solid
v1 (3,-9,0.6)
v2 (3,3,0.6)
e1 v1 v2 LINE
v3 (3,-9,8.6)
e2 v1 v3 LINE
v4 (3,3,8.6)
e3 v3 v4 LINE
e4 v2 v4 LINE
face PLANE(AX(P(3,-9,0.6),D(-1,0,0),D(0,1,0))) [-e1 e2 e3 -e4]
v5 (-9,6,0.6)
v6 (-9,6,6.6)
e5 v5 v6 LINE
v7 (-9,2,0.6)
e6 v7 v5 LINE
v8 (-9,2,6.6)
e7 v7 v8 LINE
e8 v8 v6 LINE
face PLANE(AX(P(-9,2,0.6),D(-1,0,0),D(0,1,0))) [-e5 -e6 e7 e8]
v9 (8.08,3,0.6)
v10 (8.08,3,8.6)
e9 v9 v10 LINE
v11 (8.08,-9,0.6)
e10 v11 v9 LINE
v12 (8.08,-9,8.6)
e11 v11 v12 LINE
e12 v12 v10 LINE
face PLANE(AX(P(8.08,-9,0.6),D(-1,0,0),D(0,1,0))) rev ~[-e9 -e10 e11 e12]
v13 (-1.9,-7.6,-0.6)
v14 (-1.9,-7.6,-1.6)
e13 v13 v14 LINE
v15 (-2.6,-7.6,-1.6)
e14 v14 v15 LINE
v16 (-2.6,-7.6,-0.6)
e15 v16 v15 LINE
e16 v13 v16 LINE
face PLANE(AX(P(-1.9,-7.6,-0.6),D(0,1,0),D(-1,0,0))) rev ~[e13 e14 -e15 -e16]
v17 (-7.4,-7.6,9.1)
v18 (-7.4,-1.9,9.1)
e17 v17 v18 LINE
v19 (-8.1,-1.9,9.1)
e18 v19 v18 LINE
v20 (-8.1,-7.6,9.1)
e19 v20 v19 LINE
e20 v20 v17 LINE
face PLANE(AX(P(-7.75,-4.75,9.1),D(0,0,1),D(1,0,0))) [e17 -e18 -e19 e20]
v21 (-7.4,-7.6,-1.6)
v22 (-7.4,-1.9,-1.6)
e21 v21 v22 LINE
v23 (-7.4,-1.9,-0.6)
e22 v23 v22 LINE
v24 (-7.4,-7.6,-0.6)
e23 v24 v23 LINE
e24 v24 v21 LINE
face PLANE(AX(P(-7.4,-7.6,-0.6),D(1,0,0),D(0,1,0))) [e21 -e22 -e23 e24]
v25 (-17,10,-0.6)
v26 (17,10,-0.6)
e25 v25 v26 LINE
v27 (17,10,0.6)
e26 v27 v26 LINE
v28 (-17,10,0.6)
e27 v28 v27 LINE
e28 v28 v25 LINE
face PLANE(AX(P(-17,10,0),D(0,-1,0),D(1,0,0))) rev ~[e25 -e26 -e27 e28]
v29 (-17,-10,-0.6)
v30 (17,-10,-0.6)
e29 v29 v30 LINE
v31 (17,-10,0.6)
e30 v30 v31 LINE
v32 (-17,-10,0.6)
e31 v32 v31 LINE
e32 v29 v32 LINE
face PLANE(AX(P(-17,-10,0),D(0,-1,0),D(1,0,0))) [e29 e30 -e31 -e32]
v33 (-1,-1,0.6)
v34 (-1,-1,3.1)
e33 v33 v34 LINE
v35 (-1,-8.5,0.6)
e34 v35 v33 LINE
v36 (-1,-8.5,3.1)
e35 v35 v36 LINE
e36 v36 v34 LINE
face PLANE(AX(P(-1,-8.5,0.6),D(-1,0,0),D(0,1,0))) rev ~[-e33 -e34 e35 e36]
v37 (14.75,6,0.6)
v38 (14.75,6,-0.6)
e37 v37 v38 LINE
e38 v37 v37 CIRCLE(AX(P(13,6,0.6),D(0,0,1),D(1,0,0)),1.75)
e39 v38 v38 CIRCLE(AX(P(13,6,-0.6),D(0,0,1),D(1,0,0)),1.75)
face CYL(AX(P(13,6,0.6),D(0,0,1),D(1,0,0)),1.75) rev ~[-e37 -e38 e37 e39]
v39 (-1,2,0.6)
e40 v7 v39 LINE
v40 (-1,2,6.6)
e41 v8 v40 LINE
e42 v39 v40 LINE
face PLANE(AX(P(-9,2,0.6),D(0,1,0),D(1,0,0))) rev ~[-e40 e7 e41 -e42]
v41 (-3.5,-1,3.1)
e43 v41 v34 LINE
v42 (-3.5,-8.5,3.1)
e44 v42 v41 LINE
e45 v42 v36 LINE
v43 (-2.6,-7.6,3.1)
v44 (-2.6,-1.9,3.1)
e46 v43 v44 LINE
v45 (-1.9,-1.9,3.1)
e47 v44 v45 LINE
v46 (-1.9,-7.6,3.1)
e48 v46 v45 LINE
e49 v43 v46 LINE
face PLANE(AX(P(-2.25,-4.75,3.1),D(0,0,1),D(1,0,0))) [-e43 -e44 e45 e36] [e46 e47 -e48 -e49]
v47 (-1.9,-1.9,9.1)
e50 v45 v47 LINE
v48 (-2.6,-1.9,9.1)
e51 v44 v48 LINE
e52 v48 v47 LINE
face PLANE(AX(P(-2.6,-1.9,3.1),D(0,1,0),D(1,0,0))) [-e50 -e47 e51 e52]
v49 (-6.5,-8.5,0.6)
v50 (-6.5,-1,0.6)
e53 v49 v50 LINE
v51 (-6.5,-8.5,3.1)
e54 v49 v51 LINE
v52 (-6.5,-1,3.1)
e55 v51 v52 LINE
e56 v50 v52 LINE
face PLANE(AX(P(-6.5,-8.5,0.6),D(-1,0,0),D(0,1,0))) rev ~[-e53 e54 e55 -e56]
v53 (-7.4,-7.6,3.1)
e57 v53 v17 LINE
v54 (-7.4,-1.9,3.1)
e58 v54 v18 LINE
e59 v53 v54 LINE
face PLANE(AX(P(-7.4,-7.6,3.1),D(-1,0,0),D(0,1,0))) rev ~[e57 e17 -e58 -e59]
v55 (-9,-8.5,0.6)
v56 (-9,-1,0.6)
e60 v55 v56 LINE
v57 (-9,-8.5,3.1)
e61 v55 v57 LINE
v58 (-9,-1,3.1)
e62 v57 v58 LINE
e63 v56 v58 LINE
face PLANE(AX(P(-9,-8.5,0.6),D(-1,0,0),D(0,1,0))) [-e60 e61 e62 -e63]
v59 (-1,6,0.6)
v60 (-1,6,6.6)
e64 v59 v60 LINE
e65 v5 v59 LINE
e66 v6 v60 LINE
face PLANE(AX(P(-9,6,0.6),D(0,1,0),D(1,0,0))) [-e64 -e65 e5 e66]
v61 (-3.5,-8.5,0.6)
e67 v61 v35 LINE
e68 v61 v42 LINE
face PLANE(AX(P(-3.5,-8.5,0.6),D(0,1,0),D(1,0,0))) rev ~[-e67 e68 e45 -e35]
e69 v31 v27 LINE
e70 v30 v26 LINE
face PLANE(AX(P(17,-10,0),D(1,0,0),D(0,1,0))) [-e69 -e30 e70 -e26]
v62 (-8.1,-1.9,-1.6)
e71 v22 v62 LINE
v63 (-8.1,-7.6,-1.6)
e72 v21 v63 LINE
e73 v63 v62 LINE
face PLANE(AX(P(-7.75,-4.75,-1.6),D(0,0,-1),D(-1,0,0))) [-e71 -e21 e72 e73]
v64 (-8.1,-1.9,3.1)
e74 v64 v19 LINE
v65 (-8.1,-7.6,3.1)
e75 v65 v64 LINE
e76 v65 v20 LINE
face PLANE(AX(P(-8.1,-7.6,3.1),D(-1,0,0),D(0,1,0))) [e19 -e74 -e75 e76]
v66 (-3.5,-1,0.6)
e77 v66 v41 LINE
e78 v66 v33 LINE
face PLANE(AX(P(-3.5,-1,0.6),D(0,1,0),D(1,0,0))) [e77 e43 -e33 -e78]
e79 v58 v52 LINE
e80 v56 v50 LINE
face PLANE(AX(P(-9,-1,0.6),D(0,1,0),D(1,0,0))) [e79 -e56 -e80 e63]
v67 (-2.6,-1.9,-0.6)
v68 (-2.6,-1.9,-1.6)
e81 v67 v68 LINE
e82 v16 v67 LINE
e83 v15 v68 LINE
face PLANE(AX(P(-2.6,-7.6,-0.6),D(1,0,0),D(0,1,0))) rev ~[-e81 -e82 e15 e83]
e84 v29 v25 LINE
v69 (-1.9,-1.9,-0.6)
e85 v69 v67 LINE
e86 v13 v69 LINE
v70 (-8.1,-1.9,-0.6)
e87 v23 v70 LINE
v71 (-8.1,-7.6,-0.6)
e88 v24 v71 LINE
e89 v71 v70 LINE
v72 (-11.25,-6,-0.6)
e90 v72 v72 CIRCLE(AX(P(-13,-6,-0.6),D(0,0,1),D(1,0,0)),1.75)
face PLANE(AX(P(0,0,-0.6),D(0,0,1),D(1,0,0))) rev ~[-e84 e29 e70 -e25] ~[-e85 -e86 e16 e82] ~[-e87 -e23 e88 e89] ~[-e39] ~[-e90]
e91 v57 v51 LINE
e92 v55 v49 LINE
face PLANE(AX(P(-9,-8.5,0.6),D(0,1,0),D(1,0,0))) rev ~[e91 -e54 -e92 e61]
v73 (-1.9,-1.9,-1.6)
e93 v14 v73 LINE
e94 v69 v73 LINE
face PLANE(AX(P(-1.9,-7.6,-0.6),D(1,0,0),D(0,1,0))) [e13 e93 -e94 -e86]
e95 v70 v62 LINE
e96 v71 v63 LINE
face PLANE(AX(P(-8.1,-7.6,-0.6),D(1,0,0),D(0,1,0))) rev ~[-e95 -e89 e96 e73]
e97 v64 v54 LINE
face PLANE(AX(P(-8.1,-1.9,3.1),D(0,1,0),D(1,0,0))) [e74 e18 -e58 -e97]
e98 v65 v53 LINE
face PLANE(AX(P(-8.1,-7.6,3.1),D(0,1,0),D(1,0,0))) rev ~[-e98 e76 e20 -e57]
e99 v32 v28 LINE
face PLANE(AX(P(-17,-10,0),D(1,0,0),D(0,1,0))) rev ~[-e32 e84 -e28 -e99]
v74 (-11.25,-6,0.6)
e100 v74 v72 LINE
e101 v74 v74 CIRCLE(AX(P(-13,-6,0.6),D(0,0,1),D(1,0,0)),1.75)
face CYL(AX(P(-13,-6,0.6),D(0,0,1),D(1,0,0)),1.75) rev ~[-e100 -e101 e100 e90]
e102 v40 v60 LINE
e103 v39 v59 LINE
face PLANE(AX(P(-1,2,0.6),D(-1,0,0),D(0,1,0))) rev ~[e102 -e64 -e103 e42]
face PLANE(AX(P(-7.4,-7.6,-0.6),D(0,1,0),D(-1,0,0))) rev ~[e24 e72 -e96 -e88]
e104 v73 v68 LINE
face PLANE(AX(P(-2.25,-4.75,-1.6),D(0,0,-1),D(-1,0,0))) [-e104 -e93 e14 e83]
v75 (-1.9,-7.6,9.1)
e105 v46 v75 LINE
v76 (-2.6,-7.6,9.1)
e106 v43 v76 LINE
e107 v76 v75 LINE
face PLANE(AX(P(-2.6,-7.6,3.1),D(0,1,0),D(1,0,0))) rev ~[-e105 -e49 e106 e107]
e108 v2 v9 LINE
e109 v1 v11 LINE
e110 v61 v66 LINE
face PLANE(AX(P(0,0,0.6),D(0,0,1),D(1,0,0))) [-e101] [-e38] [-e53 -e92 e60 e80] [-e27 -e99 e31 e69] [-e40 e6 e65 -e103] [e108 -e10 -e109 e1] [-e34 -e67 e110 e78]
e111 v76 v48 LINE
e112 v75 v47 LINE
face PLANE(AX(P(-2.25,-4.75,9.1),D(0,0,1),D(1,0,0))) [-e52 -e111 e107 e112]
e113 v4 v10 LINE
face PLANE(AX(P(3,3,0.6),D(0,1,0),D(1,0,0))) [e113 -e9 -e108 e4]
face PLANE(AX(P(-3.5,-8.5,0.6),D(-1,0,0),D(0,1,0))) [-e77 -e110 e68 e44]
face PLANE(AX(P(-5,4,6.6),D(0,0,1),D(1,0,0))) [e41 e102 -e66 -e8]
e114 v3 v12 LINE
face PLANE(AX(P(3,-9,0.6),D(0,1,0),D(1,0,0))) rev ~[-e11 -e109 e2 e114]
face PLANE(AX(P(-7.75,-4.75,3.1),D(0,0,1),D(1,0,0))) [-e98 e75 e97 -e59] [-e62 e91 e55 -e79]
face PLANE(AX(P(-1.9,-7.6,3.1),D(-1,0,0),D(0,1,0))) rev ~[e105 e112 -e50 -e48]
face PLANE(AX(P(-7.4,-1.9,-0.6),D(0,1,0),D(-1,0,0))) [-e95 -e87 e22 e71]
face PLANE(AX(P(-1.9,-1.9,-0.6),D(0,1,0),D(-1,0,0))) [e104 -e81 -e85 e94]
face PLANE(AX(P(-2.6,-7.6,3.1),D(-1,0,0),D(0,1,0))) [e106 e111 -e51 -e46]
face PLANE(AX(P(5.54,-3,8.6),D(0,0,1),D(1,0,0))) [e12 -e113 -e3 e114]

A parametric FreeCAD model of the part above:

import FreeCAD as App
import Part
import Sketcher
from FreeCAD import Vector
Q = App.Units.Quantity

doc = App.newDocument("Part")
body = doc.addObject("PartDesign::Body", "Body")

sketch1 = doc.addObject("Sketcher::SketchObject", "Sketch")
body.addObject(sketch1)
sketch1.AttachmentSupport = (doc.XY_Plane, [""])
sketch1.MapMode = "FlatFace"
sketch1.addGeometry([
    Part.LineSegment(Vector(-17, 10, 0), Vector(-17, -10, 0)),
    Part.LineSegment(Vector(-17, -10, 0), Vector(17, -10, 0)),
    Part.LineSegment(Vector(17, -10, 0), Vector(17, 10, 0)),
    Part.LineSegment(Vector(17, 10, 0), Vector(-17, 10, 0)),
], False)
sketch1.addConstraint([
    Sketcher.Constraint("Coincident", 0, 2, 1, 1),
    Sketcher.Constraint("Coincident", 1, 2, 2, 1),
    Sketcher.Constraint("Coincident", 2, 2, 3, 1),
    Sketcher.Constraint("Coincident", 3, 2, 0, 1),
    Sketcher.Constraint("Vertical", 0),
    Sketcher.Constraint("Horizontal", 1),
    Sketcher.Constraint("Vertical", 2),
    Sketcher.Constraint("Horizontal", 3),
    Sketcher.Constraint("Symmetric", 0, 2, 2, 2, -1, 1),
    Sketcher.Constraint("DistanceX", 1, 1, 1, 2, Q("34 mm")),
    Sketcher.Constraint("DistanceY", 0, 2, 0, 1, Q("20 mm")),
])
pad1 = doc.addObject("PartDesign::Pad", "Pad")
body.addObject(pad1)
pad1.Profile = sketch1
pad1.Length = 1.2
pad1.Midplane = True

sketch2 = doc.addObject("Sketcher::SketchObject", "Sketch001")
body.addObject(sketch2)
sketch2.AttachmentSupport = (doc.XY_Plane, [""])
sketch2.MapMode = "FlatFace"
sketch2.AttachmentOffset = App.Placement(Vector(0, 0, 0.6), App.Rotation())
sketch2.addGeometry([
    Part.LineSegment(Vector(-9, -1, 0), Vector(-9, -8.5, 0)),
    Part.LineSegment(Vector(-9, -8.5, 0), Vector(-6.5, -8.5, 0)),
    Part.LineSegment(Vector(-6.5, -8.5, 0), Vector(-6.5, -1, 0)),
    Part.LineSegment(Vector(-6.5, -1, 0), Vector(-9, -1, 0)),
    Part.LineSegment(Vector(-3.5, -1, 0), Vector(-3.5, -8.5, 0)),
    Part.LineSegment(Vector(-3.5, -8.5, 0), Vector(-1, -8.5, 0)),
    Part.LineSegment(Vector(-1, -8.5, 0), Vector(-1, -1, 0)),
    Part.LineSegment(Vector(-1, -1, 0), Vector(-3.5, -1, 0)),
], False)
sketch2.addConstraint([
    Sketcher.Constraint("Coincident", 0, 2, 1, 1),
    Sketcher.Constraint("Coincident", 1, 2, 2, 1),
    Sketcher.Constraint("Coincident", 2, 2, 3, 1),
    Sketcher.Constraint("Coincident", 3, 2, 0, 1),
    Sketcher.Constraint("Coincident", 4, 2, 5, 1),
    Sketcher.Constraint("Coincident", 5, 2, 6, 1),
    Sketcher.Constraint("Coincident", 6, 2, 7, 1),
    Sketcher.Constraint("Coincident", 7, 2, 4, 1),
    Sketcher.Constraint("Vertical", 0),
    Sketcher.Constraint("Horizontal", 1),
    Sketcher.Constraint("Vertical", 2),
    Sketcher.Constraint("Horizontal", 3),
    Sketcher.Constraint("Vertical", 4),
    Sketcher.Constraint("Horizontal", 5),
    Sketcher.Constraint("Vertical", 6),
    Sketcher.Constraint("Horizontal", 7),
    Sketcher.Constraint("Horizontal", 1, 2, 4, 2),
    Sketcher.Constraint("Horizontal", 3, 2, 6, 2),
    Sketcher.Constraint("Equal", 3, 5),
    Sketcher.Constraint("DistanceX", 1, 1, 1, 2, Q("2.5 mm")),
    Sketcher.Constraint("DistanceY", 0, 2, 0, 1, Q("7.5 mm")),
    Sketcher.Constraint("DistanceX", 0, 2, -1, 1, Q("9 mm")),
    Sketcher.Constraint("DistanceY", 2, 2, -1, 1, Q("1 mm")),
    Sketcher.Constraint("DistanceX", 5, 2, -1, 1, Q("1 mm")),
])
pad2 = doc.addObject("PartDesign::Pad", "Pad001")
body.addObject(pad2)
pad2.Profile = sketch2
pad2.Length = 2.5

sketch3 = doc.addObject("Sketcher::SketchObject", "Sketch002")
body.addObject(sketch3)
sketch3.AttachmentSupport = (doc.XY_Plane, [""])
sketch3.MapMode = "FlatFace"
sketch3.AttachmentOffset = App.Placement(Vector(0, 0, 3.1), App.Rotation())
sketch3.addGeometry([
    Part.LineSegment(Vector(-8.1, -1.9, 0), Vector(-8.1, -7.6, 0)),
    Part.LineSegment(Vector(-8.1, -7.6, 0), Vector(-7.4, -7.6, 0)),
    Part.LineSegment(Vector(-7.4, -7.6, 0), Vector(-7.4, -1.9, 0)),
    Part.LineSegment(Vector(-7.4, -1.9, 0), Vector(-8.1, -1.9, 0)),
    Part.LineSegment(Vector(-2.6, -1.9, 0), Vector(-2.6, -7.6, 0)),
    Part.LineSegment(Vector(-2.6, -7.6, 0), Vector(-1.9, -7.6, 0)),
    Part.LineSegment(Vector(-1.9, -7.6, 0), Vector(-1.9, -1.9, 0)),
    Part.LineSegment(Vector(-1.9, -1.9, 0), Vector(-2.6, -1.9, 0)),
], False)
sketch3.addConstraint([
    Sketcher.Constraint("Coincident", 0, 2, 1, 1),
    Sketcher.Constraint("Coincident", 1, 2, 2, 1),
    Sketcher.Constraint("Coincident", 2, 2, 3, 1),
    Sketcher.Constraint("Coincident", 3, 2, 0, 1),
    Sketcher.Constraint("Coincident", 4, 2, 5, 1),
    Sketcher.Constraint("Coincident", 5, 2, 6, 1),
    Sketcher.Constraint("Coincident", 6, 2, 7, 1),
    Sketcher.Constraint("Coincident", 7, 2, 4, 1),
    Sketcher.Constraint("Vertical", 0),
    Sketcher.Constraint("Horizontal", 1),
    Sketcher.Constraint("Vertical", 2),
    Sketcher.Constraint("Horizontal", 3),
    Sketcher.Constraint("Vertical", 4),
    Sketcher.Constraint("Horizontal", 5),
    Sketcher.Constraint("Vertical", 6),
    Sketcher.Constraint("Horizontal", 7),
    Sketcher.Constraint("Horizontal", 1, 2, 4, 2),
    Sketcher.Constraint("Horizontal", 3, 2, 6, 2),
    Sketcher.Constraint("Equal", 3, 5),
    Sketcher.Constraint("DistanceX", 1, 1, 1, 2, Q("0.7 mm")),
    Sketcher.Constraint("DistanceY", 0, 2, 0, 1, Q("5.7 mm")),
    Sketcher.Constraint("DistanceX", 0, 2, -1, 1, Q("8.1 mm")),
    Sketcher.Constraint("DistanceY", 0, 2, -1, 1, Q("7.6 mm")),
    Sketcher.Constraint("DistanceX", 4, 2, -1, 1, Q("2.6 mm")),
])
pad3 = doc.addObject("PartDesign::Pad", "Pad002")
body.addObject(pad3)
pad3.Profile = sketch3
pad3.Length = 6

sketch4 = doc.addObject("Sketcher::SketchObject", "Sketch003")
body.addObject(sketch4)
sketch4.AttachmentSupport = (doc.XY_Plane, [""])
sketch4.MapMode = "FlatFace"
sketch4.AttachmentOffset = App.Placement(Vector(0, 0, -0.6), App.Rotation())
sketch4.addGeometry([
    Part.LineSegment(Vector(-7.4, -1.9, 0), Vector(-7.4, -7.6, 0)),
    Part.LineSegment(Vector(-7.4, -7.6, 0), Vector(-8.1, -7.6, 0)),
    Part.LineSegment(Vector(-8.1, -7.6, 0), Vector(-8.1, -1.9, 0)),
    Part.LineSegment(Vector(-8.1, -1.9, 0), Vector(-7.4, -1.9, 0)),
    Part.LineSegment(Vector(-1.9, -1.9, 0), Vector(-1.9, -7.6, 0)),
    Part.LineSegment(Vector(-1.9, -7.6, 0), Vector(-2.6, -7.6, 0)),
    Part.LineSegment(Vector(-2.6, -7.6, 0), Vector(-2.6, -1.9, 0)),
    Part.LineSegment(Vector(-2.6, -1.9, 0), Vector(-1.9, -1.9, 0)),
], False)
sketch4.addConstraint([
    Sketcher.Constraint("Coincident", 0, 2, 1, 1),
    Sketcher.Constraint("Coincident", 1, 2, 2, 1),
    Sketcher.Constraint("Coincident", 2, 2, 3, 1),
    Sketcher.Constraint("Coincident", 3, 2, 0, 1),
    Sketcher.Constraint("Coincident", 4, 2, 5, 1),
    Sketcher.Constraint("Coincident", 5, 2, 6, 1),
    Sketcher.Constraint("Coincident", 6, 2, 7, 1),
    Sketcher.Constraint("Coincident", 7, 2, 4, 1),
    Sketcher.Constraint("Vertical", 0),
    Sketcher.Constraint("Horizontal", 1),
    Sketcher.Constraint("Vertical", 2),
    Sketcher.Constraint("Horizontal", 3),
    Sketcher.Constraint("Vertical", 4),
    Sketcher.Constraint("Horizontal", 5),
    Sketcher.Constraint("Vertical", 6),
    Sketcher.Constraint("Horizontal", 7),
    Sketcher.Constraint("Horizontal", 1, 2, 4, 2),
    Sketcher.Constraint("Horizontal", 3, 2, 6, 2),
    Sketcher.Constraint("Equal", 3, 5),
    Sketcher.Constraint("DistanceX", 1, 2, 1, 1, Q("0.7 mm")),
    Sketcher.Constraint("DistanceY", 0, 2, 0, 1, Q("5.7 mm")),
    Sketcher.Constraint("DistanceX", 0, 2, -1, 1, Q("7.4 mm")),
    Sketcher.Constraint("DistanceY", 0, 2, -1, 1, Q("7.6 mm")),
    Sketcher.Constraint("DistanceX", 4, 2, -1, 1, Q("1.9 mm")),
])
pad4 = doc.addObject("PartDesign::Pad", "Pad003")
body.addObject(pad4)
pad4.Profile = sketch4
pad4.Length = 1
pad4.Reversed = True

sketch5 = doc.addObject("Sketcher::SketchObject", "Sketch004")
body.addObject(sketch5)
sketch5.AttachmentSupport = (doc.XY_Plane, [""])
sketch5.MapMode = "FlatFace"
sketch5.AttachmentOffset = App.Placement(Vector(0, 0, 0.6), App.Rotation())
sketch5.addGeometry([
    Part.LineSegment(Vector(3, 3, 0), Vector(3, -9, 0)),
    Part.LineSegment(Vector(3, -9, 0), Vector(8.08, -9, 0)),
    Part.LineSegment(Vector(8.08, -9, 0), Vector(8.08, 3, 0)),
    Part.LineSegment(Vector(8.08, 3, 0), Vector(3, 3, 0)),
], False)
sketch5.addConstraint([
    Sketcher.Constraint("Coincident", 0, 2, 1, 1),
    Sketcher.Constraint("Coincident", 1, 2, 2, 1),
    Sketcher.Constraint("Coincident", 2, 2, 3, 1),
    Sketcher.Constraint("Coincident", 3, 2, 0, 1),
    Sketcher.Constraint("Vertical", 0),
    Sketcher.Constraint("Horizontal", 1),
    Sketcher.Constraint("Vertical", 2),
    Sketcher.Constraint("Horizontal", 3),
    Sketcher.Constraint("DistanceY", 0, 2, 0, 1, Q("12 mm")),
    Sketcher.Constraint("DistanceX", -1, 1, 0, 2, Q("3 mm")),
    Sketcher.Constraint("DistanceY", 0, 2, -1, 1, Q("9 mm")),
    Sketcher.Constraint("DistanceX", 1, 1, 1, 2, Q("5.08 mm")),
])
pad5 = doc.addObject("PartDesign::Pad", "Pad004")
body.addObject(pad5)
pad5.Profile = sketch5
pad5.Length = 8

sketch6 = doc.addObject("Sketcher::SketchObject", "Sketch005")
body.addObject(sketch6)
sketch6.AttachmentSupport = (doc.XY_Plane, [""])
sketch6.MapMode = "FlatFace"
sketch6.AttachmentOffset = App.Placement(Vector(0, 0, 0.6), App.Rotation())
sketch6.addGeometry([
    Part.LineSegment(Vector(-9, 6, 0), Vector(-9, 2, 0)),
    Part.LineSegment(Vector(-9, 2, 0), Vector(-1, 2, 0)),
    Part.LineSegment(Vector(-1, 2, 0), Vector(-1, 6, 0)),
    Part.LineSegment(Vector(-1, 6, 0), Vector(-9, 6, 0)),
], False)
sketch6.addConstraint([
    Sketcher.Constraint("Coincident", 0, 2, 1, 1),
    Sketcher.Constraint("Coincident", 1, 2, 2, 1),
    Sketcher.Constraint("Coincident", 2, 2, 3, 1),
    Sketcher.Constraint("Coincident", 3, 2, 0, 1),
    Sketcher.Constraint("Vertical", 0),
    Sketcher.Constraint("Horizontal", 1),
    Sketcher.Constraint("Vertical", 2),
    Sketcher.Constraint("Horizontal", 3),
    Sketcher.Constraint("DistanceX", 1, 1, 1, 2, Q("8 mm")),
    Sketcher.Constraint("DistanceY", 0, 2, 0, 1, Q("4 mm")),
    Sketcher.Constraint("DistanceX", 0, 2, -1, 1, Q("9 mm")),
    Sketcher.Constraint("DistanceY", -1, 1, 0, 2, Q("2 mm")),
])
pad6 = doc.addObject("PartDesign::Pad", "Pad005")
body.addObject(pad6)
pad6.Profile = sketch6
pad6.Length = 6

sketch7 = doc.addObject("Sketcher::SketchObject", "Sketch006")
body.addObject(sketch7)
sketch7.AttachmentSupport = (doc.XY_Plane, [""])
sketch7.MapMode = "FlatFace"
sketch7.AttachmentOffset = App.Placement(Vector(0, 0, 0.6), App.Rotation())
sketch7.addGeometry([
    Part.Circle(Vector(-13, -6, 0), Vector(0, 0, 1), 1.75),
    Part.Circle(Vector(13, 6, 0), Vector(0, 0, 1), 1.75),
], False)
sketch7.addConstraint([
    Sketcher.Constraint("Equal", 0, 1),
    Sketcher.Constraint("Symmetric", 0, 3, 1, 3, -1, 1),
    Sketcher.Constraint("Diameter", 0, Q("3.5 mm")),
    Sketcher.Constraint("DistanceX", 0, 3, -1, 1, Q("13 mm")),
    Sketcher.Constraint("DistanceY", 0, 3, -1, 1, Q("6 mm")),
])
pocket1 = doc.addObject("PartDesign::Pocket", "Pocket")
body.addObject(pocket1)
pocket1.Profile = sketch7
pocket1.Type = "ThroughAll"

doc.recompute()
